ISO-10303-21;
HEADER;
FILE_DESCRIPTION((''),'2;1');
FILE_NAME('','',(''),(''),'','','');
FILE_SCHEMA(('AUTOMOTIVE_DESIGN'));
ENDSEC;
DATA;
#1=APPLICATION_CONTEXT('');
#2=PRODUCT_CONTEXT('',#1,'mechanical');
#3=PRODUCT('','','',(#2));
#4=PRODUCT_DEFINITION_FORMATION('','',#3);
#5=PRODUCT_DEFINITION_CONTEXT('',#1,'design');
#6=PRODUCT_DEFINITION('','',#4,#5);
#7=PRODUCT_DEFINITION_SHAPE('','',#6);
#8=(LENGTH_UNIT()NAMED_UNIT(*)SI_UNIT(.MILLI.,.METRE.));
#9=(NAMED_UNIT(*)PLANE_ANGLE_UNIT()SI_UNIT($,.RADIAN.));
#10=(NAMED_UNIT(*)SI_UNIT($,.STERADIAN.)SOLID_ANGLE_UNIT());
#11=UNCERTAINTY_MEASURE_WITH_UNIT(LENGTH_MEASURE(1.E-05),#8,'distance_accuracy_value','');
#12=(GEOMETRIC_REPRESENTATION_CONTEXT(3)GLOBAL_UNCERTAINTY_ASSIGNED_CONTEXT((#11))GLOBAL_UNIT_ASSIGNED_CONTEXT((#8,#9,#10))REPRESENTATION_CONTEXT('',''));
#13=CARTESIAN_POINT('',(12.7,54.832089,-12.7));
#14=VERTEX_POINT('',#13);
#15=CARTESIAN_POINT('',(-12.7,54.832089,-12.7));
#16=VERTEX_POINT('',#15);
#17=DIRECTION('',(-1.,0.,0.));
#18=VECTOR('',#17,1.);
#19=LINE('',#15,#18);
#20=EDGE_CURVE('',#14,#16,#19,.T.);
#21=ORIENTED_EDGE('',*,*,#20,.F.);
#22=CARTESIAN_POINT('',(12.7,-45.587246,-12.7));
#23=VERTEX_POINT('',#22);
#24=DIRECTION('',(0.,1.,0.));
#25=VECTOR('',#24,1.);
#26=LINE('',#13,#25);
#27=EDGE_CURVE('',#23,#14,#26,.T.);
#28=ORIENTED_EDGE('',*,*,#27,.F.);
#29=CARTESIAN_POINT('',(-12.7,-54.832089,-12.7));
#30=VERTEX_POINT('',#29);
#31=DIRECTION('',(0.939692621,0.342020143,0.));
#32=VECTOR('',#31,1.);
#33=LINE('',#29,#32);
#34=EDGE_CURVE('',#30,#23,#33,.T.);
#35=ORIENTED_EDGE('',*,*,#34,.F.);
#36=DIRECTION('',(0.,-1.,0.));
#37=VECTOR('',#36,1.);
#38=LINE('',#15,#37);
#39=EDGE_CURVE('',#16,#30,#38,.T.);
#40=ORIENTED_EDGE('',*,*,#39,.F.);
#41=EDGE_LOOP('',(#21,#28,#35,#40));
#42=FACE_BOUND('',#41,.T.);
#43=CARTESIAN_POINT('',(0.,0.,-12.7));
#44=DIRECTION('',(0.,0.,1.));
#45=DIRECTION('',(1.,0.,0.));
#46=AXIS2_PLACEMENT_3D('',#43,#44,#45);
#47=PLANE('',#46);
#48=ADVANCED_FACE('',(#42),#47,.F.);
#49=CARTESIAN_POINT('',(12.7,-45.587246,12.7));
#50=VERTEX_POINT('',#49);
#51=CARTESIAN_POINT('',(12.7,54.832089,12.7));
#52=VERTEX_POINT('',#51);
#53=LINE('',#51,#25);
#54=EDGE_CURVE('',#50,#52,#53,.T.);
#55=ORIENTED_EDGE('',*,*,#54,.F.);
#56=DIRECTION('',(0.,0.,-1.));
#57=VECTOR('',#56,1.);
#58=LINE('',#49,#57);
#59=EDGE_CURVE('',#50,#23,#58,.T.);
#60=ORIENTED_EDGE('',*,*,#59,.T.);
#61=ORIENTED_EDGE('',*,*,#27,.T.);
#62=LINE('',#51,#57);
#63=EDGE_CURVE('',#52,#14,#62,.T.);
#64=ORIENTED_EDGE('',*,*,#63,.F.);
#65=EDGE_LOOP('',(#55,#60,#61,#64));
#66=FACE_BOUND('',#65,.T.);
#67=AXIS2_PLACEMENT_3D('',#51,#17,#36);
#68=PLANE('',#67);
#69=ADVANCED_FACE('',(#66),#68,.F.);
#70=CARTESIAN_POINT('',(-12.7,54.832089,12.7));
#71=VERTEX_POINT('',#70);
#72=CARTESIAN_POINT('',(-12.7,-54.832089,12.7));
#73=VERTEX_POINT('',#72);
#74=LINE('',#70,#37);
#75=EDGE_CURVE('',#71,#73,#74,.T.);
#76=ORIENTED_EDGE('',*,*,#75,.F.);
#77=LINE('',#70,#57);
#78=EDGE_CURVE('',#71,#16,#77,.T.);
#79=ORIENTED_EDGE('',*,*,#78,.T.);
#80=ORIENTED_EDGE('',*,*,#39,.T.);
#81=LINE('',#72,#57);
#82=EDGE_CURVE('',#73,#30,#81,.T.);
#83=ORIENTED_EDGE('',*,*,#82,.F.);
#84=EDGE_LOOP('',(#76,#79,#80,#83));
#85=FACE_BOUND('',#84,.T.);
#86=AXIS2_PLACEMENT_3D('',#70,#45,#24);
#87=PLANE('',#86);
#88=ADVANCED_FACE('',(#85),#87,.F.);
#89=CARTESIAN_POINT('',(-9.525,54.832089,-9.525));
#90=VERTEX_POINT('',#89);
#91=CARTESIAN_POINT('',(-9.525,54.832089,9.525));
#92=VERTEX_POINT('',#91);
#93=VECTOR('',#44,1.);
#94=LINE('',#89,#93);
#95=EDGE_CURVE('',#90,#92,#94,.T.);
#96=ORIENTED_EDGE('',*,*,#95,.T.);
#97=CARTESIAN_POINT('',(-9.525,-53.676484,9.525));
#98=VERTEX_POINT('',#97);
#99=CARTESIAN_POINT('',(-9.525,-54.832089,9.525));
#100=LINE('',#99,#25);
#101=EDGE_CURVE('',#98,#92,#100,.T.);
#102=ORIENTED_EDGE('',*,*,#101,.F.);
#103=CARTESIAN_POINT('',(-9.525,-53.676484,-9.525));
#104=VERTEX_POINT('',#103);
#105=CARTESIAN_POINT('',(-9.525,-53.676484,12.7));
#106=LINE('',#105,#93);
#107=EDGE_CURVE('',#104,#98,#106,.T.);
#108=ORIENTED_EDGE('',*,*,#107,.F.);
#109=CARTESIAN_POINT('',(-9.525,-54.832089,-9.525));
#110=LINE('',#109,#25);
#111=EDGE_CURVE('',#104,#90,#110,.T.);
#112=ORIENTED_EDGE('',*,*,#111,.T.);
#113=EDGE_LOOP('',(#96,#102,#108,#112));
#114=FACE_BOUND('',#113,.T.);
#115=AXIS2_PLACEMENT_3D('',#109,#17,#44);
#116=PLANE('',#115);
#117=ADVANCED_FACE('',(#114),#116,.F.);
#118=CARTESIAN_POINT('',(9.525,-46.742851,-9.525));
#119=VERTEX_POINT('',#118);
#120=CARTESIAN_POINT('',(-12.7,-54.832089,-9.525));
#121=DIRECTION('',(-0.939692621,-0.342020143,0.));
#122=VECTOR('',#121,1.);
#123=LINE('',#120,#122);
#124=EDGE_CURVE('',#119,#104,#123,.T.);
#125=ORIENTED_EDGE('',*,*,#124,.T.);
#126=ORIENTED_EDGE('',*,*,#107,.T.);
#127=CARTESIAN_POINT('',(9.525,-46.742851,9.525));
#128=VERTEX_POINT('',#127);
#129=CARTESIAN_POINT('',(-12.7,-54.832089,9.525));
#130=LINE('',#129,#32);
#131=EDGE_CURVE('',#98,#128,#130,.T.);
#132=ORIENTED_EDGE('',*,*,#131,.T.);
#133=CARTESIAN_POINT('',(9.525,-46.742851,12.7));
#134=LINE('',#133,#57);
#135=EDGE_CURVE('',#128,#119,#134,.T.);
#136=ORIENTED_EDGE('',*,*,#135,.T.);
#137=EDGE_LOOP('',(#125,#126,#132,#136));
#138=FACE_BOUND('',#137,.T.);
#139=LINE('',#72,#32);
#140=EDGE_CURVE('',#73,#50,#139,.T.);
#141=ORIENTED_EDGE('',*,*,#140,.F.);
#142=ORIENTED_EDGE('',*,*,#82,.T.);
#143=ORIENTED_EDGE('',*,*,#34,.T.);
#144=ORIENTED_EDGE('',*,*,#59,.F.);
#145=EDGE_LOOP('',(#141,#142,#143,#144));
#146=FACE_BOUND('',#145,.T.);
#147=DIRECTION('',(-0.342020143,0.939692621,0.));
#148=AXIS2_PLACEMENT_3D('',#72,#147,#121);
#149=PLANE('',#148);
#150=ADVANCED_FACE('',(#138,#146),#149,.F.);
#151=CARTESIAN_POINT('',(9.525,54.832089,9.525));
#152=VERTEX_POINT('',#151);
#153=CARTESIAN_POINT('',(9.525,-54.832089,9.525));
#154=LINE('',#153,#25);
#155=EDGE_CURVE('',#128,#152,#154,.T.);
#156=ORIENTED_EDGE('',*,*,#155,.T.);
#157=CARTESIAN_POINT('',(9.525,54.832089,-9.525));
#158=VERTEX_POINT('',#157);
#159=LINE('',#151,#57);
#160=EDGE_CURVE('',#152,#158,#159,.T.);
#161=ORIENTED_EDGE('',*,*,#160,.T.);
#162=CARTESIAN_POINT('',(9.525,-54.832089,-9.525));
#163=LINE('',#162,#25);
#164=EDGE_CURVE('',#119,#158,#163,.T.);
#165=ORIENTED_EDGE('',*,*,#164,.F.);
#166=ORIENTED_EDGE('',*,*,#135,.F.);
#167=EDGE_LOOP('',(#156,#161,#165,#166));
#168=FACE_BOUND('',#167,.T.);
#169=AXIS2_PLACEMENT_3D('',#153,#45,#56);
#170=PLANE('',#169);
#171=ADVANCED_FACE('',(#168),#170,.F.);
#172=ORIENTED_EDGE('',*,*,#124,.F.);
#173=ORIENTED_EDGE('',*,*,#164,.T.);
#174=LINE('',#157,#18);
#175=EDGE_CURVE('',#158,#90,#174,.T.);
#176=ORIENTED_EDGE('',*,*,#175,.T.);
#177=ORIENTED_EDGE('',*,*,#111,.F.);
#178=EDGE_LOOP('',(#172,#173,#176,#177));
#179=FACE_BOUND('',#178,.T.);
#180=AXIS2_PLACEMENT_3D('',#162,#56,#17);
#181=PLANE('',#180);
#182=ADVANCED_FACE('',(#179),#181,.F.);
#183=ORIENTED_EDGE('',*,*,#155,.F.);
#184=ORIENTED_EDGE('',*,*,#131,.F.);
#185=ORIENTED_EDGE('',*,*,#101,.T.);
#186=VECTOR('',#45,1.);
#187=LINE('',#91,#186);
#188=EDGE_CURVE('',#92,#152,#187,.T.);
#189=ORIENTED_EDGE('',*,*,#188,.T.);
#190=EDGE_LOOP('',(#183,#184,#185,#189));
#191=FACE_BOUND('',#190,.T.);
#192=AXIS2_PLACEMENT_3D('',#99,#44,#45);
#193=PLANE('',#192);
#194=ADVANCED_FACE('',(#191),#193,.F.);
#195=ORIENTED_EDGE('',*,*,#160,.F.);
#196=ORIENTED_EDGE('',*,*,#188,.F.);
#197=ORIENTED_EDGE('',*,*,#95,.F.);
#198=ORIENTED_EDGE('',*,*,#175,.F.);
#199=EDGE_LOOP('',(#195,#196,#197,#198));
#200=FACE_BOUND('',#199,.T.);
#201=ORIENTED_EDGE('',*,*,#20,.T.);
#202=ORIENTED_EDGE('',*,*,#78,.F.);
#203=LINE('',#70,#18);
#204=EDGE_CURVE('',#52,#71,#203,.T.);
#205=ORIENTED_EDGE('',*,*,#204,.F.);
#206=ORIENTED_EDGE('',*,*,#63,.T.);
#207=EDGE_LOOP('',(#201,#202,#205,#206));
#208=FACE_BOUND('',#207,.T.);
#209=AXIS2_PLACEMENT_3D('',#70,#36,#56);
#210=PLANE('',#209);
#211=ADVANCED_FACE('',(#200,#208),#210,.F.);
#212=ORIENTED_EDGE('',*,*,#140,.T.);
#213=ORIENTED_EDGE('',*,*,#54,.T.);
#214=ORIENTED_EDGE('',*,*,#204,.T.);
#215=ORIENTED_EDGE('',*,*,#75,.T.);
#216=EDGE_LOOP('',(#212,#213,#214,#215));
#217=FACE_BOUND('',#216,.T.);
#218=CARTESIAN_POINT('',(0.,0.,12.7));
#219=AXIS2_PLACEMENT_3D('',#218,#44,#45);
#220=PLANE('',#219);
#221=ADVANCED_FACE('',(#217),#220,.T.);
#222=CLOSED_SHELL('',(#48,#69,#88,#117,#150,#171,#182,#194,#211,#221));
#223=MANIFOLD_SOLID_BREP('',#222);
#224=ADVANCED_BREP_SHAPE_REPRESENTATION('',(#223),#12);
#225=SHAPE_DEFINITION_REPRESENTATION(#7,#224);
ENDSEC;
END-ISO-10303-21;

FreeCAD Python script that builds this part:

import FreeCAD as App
import Part
import Sketcher

V = App.Vector
Q = App.Units.Quantity

doc = App.newDocument("Part")
params = doc.addObject("Spreadsheet::Sheet", "Params")
for row, (alias, value) in enumerate([
    ("sketch1_width", "1 in"),
    ("pad1_length", "1 in"),
    ("sketch2_width", "0.75 in"),
], start=1):
    params.set(f"A{row}", alias)
    params.set(f"B{row}", "=" + value)
    params.setAlias(f"B{row}", alias)

body = doc.addObject("PartDesign::Body", "Body")

# Sketch on XY plane
sketch1 = body.newObject("Sketcher::SketchObject", "Sketch")
sketch1.AttachmentSupport = (doc.getObject("XY_Plane"), [""])
sketch1.MapMode = "FlatFace"
sketch1.addGeometry([
    Part.LineSegment(V(-13, -55, 0), V(13, -46, 0)),
    Part.LineSegment(V(13, -46, 0), V(13, 55, 0)),
    Part.LineSegment(V(13, 55, 0), V(-13, 55, 0)),
    Part.LineSegment(V(-13, 55, 0), V(-13, -55, 0)),
], False)
sketch1.addConstraint([
    Sketcher.Constraint("Coincident", 0, 2, 1, 1),
    Sketcher.Constraint("Coincident", 1, 2, 2, 1),
    Sketcher.Constraint("Coincident", 2, 2, 3, 1),
    Sketcher.Constraint("Coincident", 3, 2, 0, 1),
    Sketcher.Constraint("Vertical", 1),
    Sketcher.Constraint("Horizontal", 2),
    Sketcher.Constraint("Vertical", 3),
    Sketcher.Constraint("Symmetric", 1, 2, 3, 2, -1, 1),
    Sketcher.Constraint("DistanceX", 2, 2, 2, 1, Q("1 in")),
    Sketcher.Constraint("Angle", 0, Q("20 deg")),
    Sketcher.Constraint("DistanceY", 3, 2, 3, 1, 109.664179),
])
sketch1.setExpression("Constraints[8]", "Params.sketch1_width")
pad1 = body.newObject("PartDesign::Pad", "Pad")
pad1.Profile = sketch1
pad1.setExpression("Length", "Params.pad1_length")
pad1.Midplane = True

# Sketch on XZ plane
sketch2 = body.newObject("Sketcher::SketchObject", "Sketch001")
sketch2.AttachmentSupport = (doc.getObject("XZ_Plane"), [""])
sketch2.MapMode = "FlatFace"
sketch2.AttachmentOffset = App.Placement(V(0, 0, -54.832089), App.Rotation())
sketch2.addGeometry([
    Part.LineSegment(V(-10, -10, 0), V(-10, 10, 0)),
    Part.LineSegment(V(-10, 10, 0), V(10, 10, 0)),
    Part.LineSegment(V(10, 10, 0), V(10, -10, 0)),
    Part.LineSegment(V(10, -10, 0), V(-10, -10, 0)),
], False)
sketch2.addConstraint([
    Sketcher.Constraint("Coincident", 0, 2, 1, 1),
    Sketcher.Constraint("Coincident", 1, 2, 2, 1),
    Sketcher.Constraint("Coincident", 2, 2, 3, 1),
    Sketcher.Constraint("Coincident", 3, 2, 0, 1),
    Sketcher.Constraint("Vertical", 0),
    Sketcher.Constraint("Horizontal", 1),
    Sketcher.Constraint("Vertical", 2),
    Sketcher.Constraint("Horizontal", 3),
    Sketcher.Constraint("Symmetric", 0, 2, 2, 2, -1, 1),
    Sketcher.Constraint("Equal", 3, 0),
    Sketcher.Constraint("DistanceX", 1, 1, 1, 2, Q("0.75 in")),
])
sketch2.setExpression("Constraints[10]", "Params.sketch2_width")
pocket1 = body.newObject("PartDesign::Pocket", "Pocket")
pocket1.Profile = sketch2
pocket1.Type = "ThroughAll"
pocket1.Reversed = True

doc.recompute()
